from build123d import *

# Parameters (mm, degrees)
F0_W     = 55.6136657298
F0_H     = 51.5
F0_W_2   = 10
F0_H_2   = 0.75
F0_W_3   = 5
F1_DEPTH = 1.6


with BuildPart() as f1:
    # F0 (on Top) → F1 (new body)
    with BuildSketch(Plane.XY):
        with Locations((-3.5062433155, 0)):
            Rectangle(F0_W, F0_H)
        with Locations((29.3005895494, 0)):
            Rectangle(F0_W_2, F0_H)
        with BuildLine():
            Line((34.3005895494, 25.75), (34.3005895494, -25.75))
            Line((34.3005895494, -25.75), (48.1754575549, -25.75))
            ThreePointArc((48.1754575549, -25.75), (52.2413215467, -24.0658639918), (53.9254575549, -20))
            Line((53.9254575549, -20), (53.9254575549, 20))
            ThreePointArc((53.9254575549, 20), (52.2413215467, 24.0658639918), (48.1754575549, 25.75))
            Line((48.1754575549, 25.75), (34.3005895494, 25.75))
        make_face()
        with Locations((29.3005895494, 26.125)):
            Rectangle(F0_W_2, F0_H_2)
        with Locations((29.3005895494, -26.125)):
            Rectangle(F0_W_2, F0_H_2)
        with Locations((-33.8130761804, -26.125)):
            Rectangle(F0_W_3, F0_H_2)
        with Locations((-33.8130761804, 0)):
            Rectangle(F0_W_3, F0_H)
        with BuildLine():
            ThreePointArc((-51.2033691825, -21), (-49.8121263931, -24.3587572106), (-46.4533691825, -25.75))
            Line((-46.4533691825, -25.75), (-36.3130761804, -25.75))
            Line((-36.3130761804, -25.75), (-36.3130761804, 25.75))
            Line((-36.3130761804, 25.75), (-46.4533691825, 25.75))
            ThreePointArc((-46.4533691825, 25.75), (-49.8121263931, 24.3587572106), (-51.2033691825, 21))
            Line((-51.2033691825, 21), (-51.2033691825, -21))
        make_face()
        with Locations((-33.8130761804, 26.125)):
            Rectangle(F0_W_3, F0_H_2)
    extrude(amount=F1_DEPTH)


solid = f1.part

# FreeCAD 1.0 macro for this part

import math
import FreeCAD as App
import Part
import Sketcher
from FreeCAD import Vector

doc = App.newDocument("Part")
body = doc.addObject("PartDesign::Body", "Body")

# Sketch on XY plane
sketch1 = body.newObject("Sketcher::SketchObject", "Sketch")
sketch1.AttachmentSupport = (doc.getObject("XY_Plane"), [""])
sketch1.MapMode = "FlatFace"
sketch1.addGeometry([
    Part.LineSegment(Vector(-31.3, -25.8, 0), Vector(24.3, -25.8, 0)),  # 0
    Part.LineSegment(Vector(24.3, -25.8, 0), Vector(24.3, -26.5, 0)),  # 1
    Part.LineSegment(Vector(24.3, -26.5, 0), Vector(34.3, -26.5, 0)),  # 2
    Part.LineSegment(Vector(34.3, -26.5, 0), Vector(34.3, -25.8, 0)),  # 3
    Part.LineSegment(Vector(34.3, -25.8, 0), Vector(48.2, -25.8, 0)),  # 4
    Part.ArcOfCircle(Part.Circle(Vector(48.2, -20, 0), Vector(0, 0, 1), 5.8), math.radians(-90), math.radians(0)),  # 5
    Part.LineSegment(Vector(53.9, -20, 0), Vector(53.9, 20, 0)),  # 6
    Part.ArcOfCircle(Part.Circle(Vector(48.2, 20, 0), Vector(0, 0, 1), 5.8), math.radians(0), math.radians(90)),  # 7
    Part.LineSegment(Vector(48.2, 25.8, 0), Vector(34.3, 25.8, 0)),  # 8
    Part.LineSegment(Vector(34.3, 25.8, 0), Vector(34.3, 26.5, 0)),  # 9
    Part.LineSegment(Vector(34.3, 26.5, 0), Vector(24.3, 26.5, 0)),  # 10
    Part.LineSegment(Vector(24.3, 26.5, 0), Vector(24.3, 25.8, 0)),  # 11
    Part.LineSegment(Vector(24.3, 25.8, 0), Vector(-31.3, 25.8, 0)),  # 12
    Part.LineSegment(Vector(-31.3, 25.8, 0), Vector(-31.3, 26.5, 0)),  # 13
    Part.LineSegment(Vector(-31.3, 26.5, 0), Vector(-36.3, 26.5, 0)),  # 14
    Part.LineSegment(Vector(-36.3, 26.5, 0), Vector(-36.3, 25.8, 0)),  # 15
    Part.LineSegment(Vector(-36.3, 25.8, 0), Vector(-46.5, 25.8, 0)),  # 16
    Part.ArcOfCircle(Part.Circle(Vector(-46.5, 21, 0), Vector(0, 0, 1), 4.8), math.radians(90), math.radians(180)),  # 17
    Part.LineSegment(Vector(-51.2, 21, 0), Vector(-51.2, -21, 0)),  # 18
    Part.ArcOfCircle(Part.Circle(Vector(-46.5, -21, 0), Vector(0, 0, 1), 4.8), math.radians(180), math.radians(270)),  # 19
    Part.LineSegment(Vector(-46.5, -25.8, 0), Vector(-36.3, -25.8, 0)),  # 20
    Part.LineSegment(Vector(-36.3, -25.8, 0), Vector(-36.3, -26.5, 0)),  # 21
    Part.LineSegment(Vector(-36.3, -26.5, 0), Vector(-31.3, -26.5, 0)),  # 22
    Part.LineSegment(Vector(-31.3, -26.5, 0), Vector(-31.3, -25.8, 0)),  # 23
], False)
sketch1.addConstraint([
    Sketcher.Constraint("Coincident", 0, 2, 1, 1),
    Sketcher.Constraint("Coincident", 1, 2, 2, 1),
    Sketcher.Constraint("Coincident", 2, 2, 3, 1),
    Sketcher.Constraint("Coincident", 3, 2, 4, 1),
    Sketcher.Constraint("Tangent", 4, 2, 5, 1),
    Sketcher.Constraint("Tangent", 5, 2, 6, 1),
    Sketcher.Constraint("Tangent", 6, 2, 7, 1),
    Sketcher.Constraint("Tangent", 7, 2, 8, 1),
    Sketcher.Constraint("Coincident", 8, 2, 9, 1),
    Sketcher.Constraint("Coincident", 9, 2, 10, 1),
    Sketcher.Constraint("Coincident", 10, 2, 11, 1),
    Sketcher.Constraint("Coincident", 11, 2, 12, 1),
    Sketcher.Constraint("Coincident", 12, 2, 13, 1),
    Sketcher.Constraint("Coincident", 13, 2, 14, 1),
    Sketcher.Constraint("Coincident", 14, 2, 15, 1),
    Sketcher.Constraint("Coincident", 15, 2, 16, 1),
    Sketcher.Constraint("Tangent", 16, 2, 17, 1),
    Sketcher.Constraint("Tangent", 17, 2, 18, 1),
    Sketcher.Constraint("Tangent", 18, 2, 19, 1),
    Sketcher.Constraint("Tangent", 19, 2, 20, 1),
    Sketcher.Constraint("Coincident", 20, 2, 21, 1),
    Sketcher.Constraint("Coincident", 21, 2, 22, 1),
    Sketcher.Constraint("Coincident", 22, 2, 23, 1),
    Sketcher.Constraint("Coincident", 23, 2, 0, 1),
    Sketcher.Constraint("Horizontal", 0),
    Sketcher.Constraint("Vertical", 1),
    Sketcher.Constraint("Horizontal", 2),
    Sketcher.Constraint("Vertical", 3),
    Sketcher.Constraint("Horizontal", 4),
    Sketcher.Constraint("Vertical", 6),
    Sketcher.Constraint("Horizontal", 8),
    Sketcher.Constraint("Vertical", 9),
    Sketcher.Constraint("Horizontal", 10),
    Sketcher.Constraint("Vertical", 11),
    Sketcher.Constraint("Horizontal", 12),
    Sketcher.Constraint("Vertical", 13),
    Sketcher.Constraint("Horizontal", 14),
    Sketcher.Constraint("Vertical", 15),
    Sketcher.Constraint("Horizontal", 16),
    Sketcher.Constraint("Vertical", 18),
    Sketcher.Constraint("Horizontal", 20),
    Sketcher.Constraint("Vertical", 21),
    Sketcher.Constraint("Horizontal", 22),
    Sketcher.Constraint("Vertical", 23),
    Sketcher.Constraint("Equal", 5, 7),
    Sketcher.Constraint("Equal", 17, 19),
    Sketcher.Constraint("Symmetric", 3, 2, 8, 2, -1),
    Sketcher.Constraint("Symmetric", 1, 2, 10, 2, -1),
    Sketcher.Constraint("Symmetric", 15, 2, 20, 2, -1),
    Sketcher.Constraint("Symmetric", 13, 2, 22, 2, -1),
    Sketcher.Constraint("Horizontal", 0, 2, 3, 2),
    Sketcher.Constraint("Horizontal", 8, 2, 11, 2),
    Sketcher.Constraint("Horizontal", 10, 2, 13, 2),
    Sketcher.Constraint("Horizontal", 12, 2, 15, 2),
    Sketcher.Constraint("DistanceX", 2, 1, 2, 2, 10.0),
    Sketcher.Constraint("DistanceX", 14, 2, 14, 1, 5.0),
    Sketcher.Constraint("DistanceY", 6, 1, 6, 2, 40.0),
    Sketcher.Constraint("DistanceY", 18, 2, 18, 1, 42.0),
    Sketcher.Constraint("Radius", 5, 5.75),
    Sketcher.Constraint("DistanceY", 1, 2, 1, 1, 0.75),
    Sketcher.Constraint("DistanceX", 4, 1, 4, 2, 13.874868),
    Sketcher.Constraint("DistanceX", 0, 1, 0, 2, 55.613666),
    Sketcher.Constraint("DistanceX", 16, 2, 16, 1, 10.140293),
    Sketcher.Constraint("DistanceX", 17, 3, -1, 1, 46.453369),
])
pad1 = body.newObject("PartDesign::Pad", "Pad")
pad1.Profile = sketch1
pad1.Length = 1.6

doc.recompute()
